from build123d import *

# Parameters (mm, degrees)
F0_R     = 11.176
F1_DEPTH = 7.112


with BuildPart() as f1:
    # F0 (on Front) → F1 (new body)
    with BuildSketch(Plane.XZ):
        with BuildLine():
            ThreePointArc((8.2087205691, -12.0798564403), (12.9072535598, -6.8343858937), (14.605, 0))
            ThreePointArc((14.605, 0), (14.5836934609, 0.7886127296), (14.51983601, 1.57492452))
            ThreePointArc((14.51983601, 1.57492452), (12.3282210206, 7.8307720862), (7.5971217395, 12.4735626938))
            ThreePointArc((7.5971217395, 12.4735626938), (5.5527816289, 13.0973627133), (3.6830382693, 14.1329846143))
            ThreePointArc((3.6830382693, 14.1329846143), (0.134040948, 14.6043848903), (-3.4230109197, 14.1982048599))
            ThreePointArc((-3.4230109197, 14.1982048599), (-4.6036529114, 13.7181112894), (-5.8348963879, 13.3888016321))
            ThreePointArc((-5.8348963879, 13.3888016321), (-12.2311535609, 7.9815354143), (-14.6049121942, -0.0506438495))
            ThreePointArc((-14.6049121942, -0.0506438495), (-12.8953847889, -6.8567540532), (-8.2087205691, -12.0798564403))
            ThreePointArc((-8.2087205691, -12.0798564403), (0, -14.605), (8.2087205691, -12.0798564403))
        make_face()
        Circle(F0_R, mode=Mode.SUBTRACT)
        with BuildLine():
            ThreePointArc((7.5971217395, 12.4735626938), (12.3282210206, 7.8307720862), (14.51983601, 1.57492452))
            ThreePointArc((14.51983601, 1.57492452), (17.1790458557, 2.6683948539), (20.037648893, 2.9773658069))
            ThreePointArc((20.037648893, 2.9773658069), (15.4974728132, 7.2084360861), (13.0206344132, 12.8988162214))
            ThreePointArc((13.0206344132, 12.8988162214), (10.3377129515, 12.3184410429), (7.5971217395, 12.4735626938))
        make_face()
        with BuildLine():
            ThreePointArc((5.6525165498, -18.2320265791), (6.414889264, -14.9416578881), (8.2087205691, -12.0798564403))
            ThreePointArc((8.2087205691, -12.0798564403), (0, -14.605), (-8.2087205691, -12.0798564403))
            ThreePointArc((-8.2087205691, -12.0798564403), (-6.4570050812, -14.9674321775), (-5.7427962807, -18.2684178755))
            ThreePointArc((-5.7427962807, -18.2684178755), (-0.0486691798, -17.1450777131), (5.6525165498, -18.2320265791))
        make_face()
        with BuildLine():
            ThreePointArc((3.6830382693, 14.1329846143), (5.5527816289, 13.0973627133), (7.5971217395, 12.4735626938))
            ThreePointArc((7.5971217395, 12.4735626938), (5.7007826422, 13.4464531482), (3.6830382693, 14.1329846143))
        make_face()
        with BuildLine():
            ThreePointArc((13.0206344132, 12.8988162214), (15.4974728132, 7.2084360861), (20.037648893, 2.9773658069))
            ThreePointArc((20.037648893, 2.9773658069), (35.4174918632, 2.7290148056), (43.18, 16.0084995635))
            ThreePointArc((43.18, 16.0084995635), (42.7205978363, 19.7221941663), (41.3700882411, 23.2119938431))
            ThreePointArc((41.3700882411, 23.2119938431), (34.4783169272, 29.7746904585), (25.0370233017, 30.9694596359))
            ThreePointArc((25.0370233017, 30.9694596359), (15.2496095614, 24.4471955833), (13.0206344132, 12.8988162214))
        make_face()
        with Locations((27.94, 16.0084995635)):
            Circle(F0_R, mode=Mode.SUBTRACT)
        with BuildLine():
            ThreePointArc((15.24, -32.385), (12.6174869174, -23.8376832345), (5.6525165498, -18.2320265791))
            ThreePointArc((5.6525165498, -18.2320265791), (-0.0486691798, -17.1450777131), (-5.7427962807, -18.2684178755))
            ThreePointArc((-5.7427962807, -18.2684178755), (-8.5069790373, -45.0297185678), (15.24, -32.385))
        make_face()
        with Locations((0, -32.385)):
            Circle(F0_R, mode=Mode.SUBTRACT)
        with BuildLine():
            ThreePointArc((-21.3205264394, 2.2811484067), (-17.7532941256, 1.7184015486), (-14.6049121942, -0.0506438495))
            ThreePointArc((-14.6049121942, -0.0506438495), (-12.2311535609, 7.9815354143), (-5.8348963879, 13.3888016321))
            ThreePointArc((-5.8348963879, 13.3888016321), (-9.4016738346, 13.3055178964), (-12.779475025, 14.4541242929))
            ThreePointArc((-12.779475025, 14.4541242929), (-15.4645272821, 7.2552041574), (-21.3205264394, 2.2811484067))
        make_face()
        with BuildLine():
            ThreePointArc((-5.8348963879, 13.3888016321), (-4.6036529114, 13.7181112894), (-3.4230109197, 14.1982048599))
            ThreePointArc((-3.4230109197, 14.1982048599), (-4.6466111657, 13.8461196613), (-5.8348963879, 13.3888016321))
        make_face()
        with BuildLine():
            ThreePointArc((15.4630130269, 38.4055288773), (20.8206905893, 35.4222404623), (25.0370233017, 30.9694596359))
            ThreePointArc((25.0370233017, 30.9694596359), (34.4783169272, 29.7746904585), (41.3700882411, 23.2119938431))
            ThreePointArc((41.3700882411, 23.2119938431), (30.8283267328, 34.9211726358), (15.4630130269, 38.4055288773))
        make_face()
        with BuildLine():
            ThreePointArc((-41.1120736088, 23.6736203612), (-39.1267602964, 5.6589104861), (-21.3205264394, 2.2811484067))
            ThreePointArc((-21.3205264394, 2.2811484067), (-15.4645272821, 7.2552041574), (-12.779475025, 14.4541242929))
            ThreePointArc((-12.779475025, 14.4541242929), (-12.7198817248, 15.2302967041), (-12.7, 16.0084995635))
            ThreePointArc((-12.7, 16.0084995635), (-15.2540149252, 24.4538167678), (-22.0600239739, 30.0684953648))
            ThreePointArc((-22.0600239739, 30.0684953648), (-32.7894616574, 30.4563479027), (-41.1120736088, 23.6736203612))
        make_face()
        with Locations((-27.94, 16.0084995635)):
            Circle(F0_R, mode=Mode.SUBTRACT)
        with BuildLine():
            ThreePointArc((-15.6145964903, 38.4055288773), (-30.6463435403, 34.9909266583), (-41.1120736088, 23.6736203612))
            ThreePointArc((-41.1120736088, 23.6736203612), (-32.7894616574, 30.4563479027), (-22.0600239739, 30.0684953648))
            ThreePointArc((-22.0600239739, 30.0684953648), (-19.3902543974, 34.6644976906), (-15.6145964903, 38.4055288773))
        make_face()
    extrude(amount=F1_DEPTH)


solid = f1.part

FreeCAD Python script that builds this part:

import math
import FreeCAD as App
import Part
import Sketcher
Q = App.Units.Quantity

doc = App.newDocument("Part")
body = doc.addObject("PartDesign::Body", "Body")

# Sketch on XZ plane
sketch1 = body.newObject("Sketcher::SketchObject", "Sketch")
sketch1.AttachmentSupport = (doc.getObject("XZ_Plane"), [""])
sketch1.MapMode = "FlatFace"
sketch1.addGeometry([
    Part.ArcOfCircle(Part.Circle(App.Vector(0, 0, 0), App.Vector(0, 0, 1), 14.6), math.radians(-56), math.radians(0)),  # 0
    Part.ArcOfCircle(Part.Circle(App.Vector(0, 0, 0), App.Vector(0, 0, 1), 14.6), math.radians(0), math.radians(6.19)),  # 1
    Part.ArcOfCircle(Part.Circle(App.Vector(19.7, -7.2, 0), App.Vector(0, 0, 1), 10.2), math.radians(88), math.radians(120)),  # 2
    Part.ArcOfCircle(Part.Circle(App.Vector(27.9, 16, 0), App.Vector(0, 0, 1), 15.2), math.radians(-121), math.radians(0)),  # 3
    Part.ArcOfCircle(Part.Circle(App.Vector(27.9, 16, 0), App.Vector(0, 0, 1), 15.2), math.radians(0), math.radians(28)),  # 4
    Part.ArcOfCircle(Part.Circle(App.Vector(17.7, 12.5, 0), App.Vector(0, 0, 1), 26), math.radians(24), math.radians(95)),  # 5
    Part.ArcOfCircle(Part.Circle(App.Vector(8.4, 19.5, 0), App.Vector(0, 0, 1), 20.2), math.radians(35), math.radians(70)),  # 6
    Part.ArcOfCircle(Part.Circle(App.Vector(27.9, 16, 0), App.Vector(0, 0, 1), 15.2), math.radians(101), math.radians(192)),  # 7
    Part.ArcOfCircle(Part.Circle(App.Vector(9.5, 22.5, 0), App.Vector(0, 0, 1), 10.2), math.radians(-101), math.radians(-70)),  # 8
    Part.ArcOfCircle(Part.Circle(App.Vector(0, 0, 0), App.Vector(0, 0, 1), 14.6), math.radians(58.66), math.radians(75.39)),  # 9
    Part.ArcOfCircle(Part.Circle(App.Vector(0, 0, 0), App.Vector(0, 0, 1), 14.6), math.radians(75), math.radians(104)),  # 10
    Part.ArcOfCircle(Part.Circle(App.Vector(0, 0, 0), App.Vector(0, 0, 1), 14.6), math.radians(103.55), math.radians(113.55)),  # 11
    Part.ArcOfCircle(Part.Circle(App.Vector(-7.9, 23.4, 0), App.Vector(0, 0, 1), 10.2), math.radians(-119), math.radians(-79)),  # 12
    Part.ArcOfCircle(Part.Circle(App.Vector(-27.9, 16, 0), App.Vector(0, 0, 1), 15.2), math.radians(-5.85), math.radians(0)),  # 13
    Part.ArcOfCircle(Part.Circle(App.Vector(-27.9, 16, 0), App.Vector(0, 0, 1), 15.2), math.radians(0), math.radians(67)),  # 14
    Part.ArcOfCircle(Part.Circle(App.Vector(-3.4, 22.3, 0), App.Vector(0, 0, 1), 20.2), math.radians(127), math.radians(157)),  # 15
    Part.ArcOfCircle(Part.Circle(App.Vector(-17.6, 12.4, 0), App.Vector(0, 0, 1), 26), math.radians(86), math.radians(154)),  # 16
    Part.ArcOfCircle(Part.Circle(App.Vector(-27.9, 16, 0), App.Vector(0, 0, 1), 15.2), math.radians(150), math.radians(296)),  # 17
    Part.ArcOfCircle(Part.Circle(App.Vector(-21.1, -7.9, 0), App.Vector(0, 0, 1), 10.2), math.radians(50), math.radians(91)),  # 18
    Part.ArcOfCircle(Part.Circle(App.Vector(0, 0, 0), App.Vector(0, 0, 1), 14.6), math.radians(-180), math.radians(-124)),  # 19
    Part.ArcOfCircle(Part.Circle(App.Vector(-15.9, -18.7, 0), App.Vector(0, 0, 1), 10.2), math.radians(3), math.radians(41)),  # 20
    Part.ArcOfCircle(Part.Circle(App.Vector(0, -32.4, 0), App.Vector(0, 0, 1), 15.2), math.radians(112), math.radians(360)),  # 21
    Part.ArcOfCircle(Part.Circle(App.Vector(0, -32.4, 0), App.Vector(0, 0, 1), 15.2), math.radians(0), math.radians(68)),  # 22
    Part.ArcOfCircle(Part.Circle(App.Vector(15.8, -18.9, 0), App.Vector(0, 0, 1), 10.2), math.radians(138), math.radians(176)),  # 23
    Part.Circle(App.Vector(0, -32.4, 0), App.Vector(0, 0, 1), 11.2),  # 24
    Part.Circle(App.Vector(-27.9, 16, 0), App.Vector(0, 0, 1), 11.2),  # 25
    Part.Circle(App.Vector(0, 0, 0), App.Vector(0, 0, 1), 11.2),  # 26
    Part.Circle(App.Vector(27.9, 16, 0), App.Vector(0, 0, 1), 11.2),  # 27
], False)
sketch1.addConstraint([
    Sketcher.Constraint("Tangent", 0, 2, 1, 1),
    Sketcher.Constraint("Coincident", 1, 2, 2, 2),
    Sketcher.Constraint("Coincident", 2, 1, 3, 1),
    Sketcher.Constraint("Tangent", 3, 2, 4, 1),
    Sketcher.Constraint("Coincident", 4, 2, 5, 1),
    Sketcher.Constraint("Coincident", 5, 2, 6, 2),
    Sketcher.Constraint("Coincident", 6, 1, 7, 1),
    Sketcher.Constraint("Coincident", 7, 2, 8, 2),
    Sketcher.Constraint("Coincident", 8, 1, 9, 1),
    Sketcher.Constraint("Tangent", 9, 2, 10, 1),
    Sketcher.Constraint("Tangent", 10, 2, 11, 1),
    Sketcher.Constraint("Coincident", 11, 2, 12, 2),
    Sketcher.Constraint("Coincident", 12, 1, 13, 1),
    Sketcher.Constraint("Tangent", 13, 2, 14, 1),
    Sketcher.Constraint("Coincident", 14, 2, 15, 2),
    Sketcher.Constraint("Coincident", 15, 1, 16, 1),
    Sketcher.Constraint("Coincident", 16, 2, 17, 1),
    Sketcher.Constraint("Coincident", 17, 2, 18, 2),
    Sketcher.Constraint("Coincident", 18, 1, 19, 1),
    Sketcher.Constraint("Coincident", 19, 2, 20, 2),
    Sketcher.Constraint("Coincident", 20, 1, 21, 1),
    Sketcher.Constraint("Tangent", 21, 2, 22, 1),
    Sketcher.Constraint("Coincident", 22, 2, 23, 2),
    Sketcher.Constraint("Coincident", 23, 1, 0, 1),
    Sketcher.Constraint("Coincident", 0, 3, -1, 1),
    Sketcher.Constraint("Coincident", 9, 3, -1, 1),
    Sketcher.Constraint("Coincident", 11, 3, -1, 1),
    Sketcher.Constraint("Coincident", 19, 3, -1, 1),
    Sketcher.Constraint("Coincident", 26, 3, -1, 1),
    Sketcher.Constraint("Coincident", 7, 3, 3, 3),
    Sketcher.Constraint("Coincident", 17, 3, 13, 3),
    Sketcher.Constraint("Coincident", 24, 3, 21, 3),
    Sketcher.Constraint("Coincident", 25, 3, 13, 3),
    Sketcher.Constraint("Coincident", 27, 3, 3, 3),
    Sketcher.Constraint("Equal", 0, 1),
    Sketcher.Constraint("Equal", 3, 4),
    Sketcher.Constraint("Equal", 4, 7),
    Sketcher.Constraint("Equal", 2, 8),
    Sketcher.Constraint("Equal", 1, 9),
    Sketcher.Constraint("Equal", 8, 12),
    Sketcher.Constraint("Equal", 7, 13),
    Sketcher.Constraint("Equal", 13, 14),
    Sketcher.Constraint("Equal", 6, 15),
    Sketcher.Constraint("Equal", 5, 16),
    Sketcher.Constraint("Equal", 14, 17),
    Sketcher.Constraint("Equal", 12, 18),
    Sketcher.Constraint("Equal", 11, 19),
    Sketcher.Constraint("Equal", 18, 20),
    Sketcher.Constraint("Equal", 17, 21),
    Sketcher.Constraint("Equal", 21, 22),
    Sketcher.Constraint("Equal", 20, 23),
    Sketcher.Constraint("Equal", 24, 25),
    Sketcher.Constraint("Equal", 25, 26),
    Sketcher.Constraint("Equal", 26, 27),
    Sketcher.Constraint("Symmetric", 3, 3, 13, 3, -2),
    Sketcher.Constraint("PointOnObject", 21, 3, -2),
    Sketcher.Constraint("PointOnObject", 0, 2, -1),
    Sketcher.Constraint("Horizontal", 27, 3, 3, 2),
    Sketcher.Constraint("Horizontal", 3, 2, 13, 2),
    Sketcher.Constraint("Horizontal", 5, 2, 15, 1),
    Sketcher.Constraint("Horizontal", 24, 3, 21, 2),
    Sketcher.Constraint("Horizontal", 19, 2, 23, 1),
    Sketcher.Constraint("Radius", 3, Q("0.6 in")),
    Sketcher.Constraint("Diameter", 24, Q("0.88 in")),
    Sketcher.Constraint("Radius", 0, Q("0.575 in")),
    Sketcher.Constraint("DistanceX", -1, 1, 3, 3, Q("1.1 in")),
    Sketcher.Constraint("DistanceY", 21, 3, -1, 1, Q("1.275 in")),
    Sketcher.Constraint("Radius", 6, Q("20.21036 mm")),
    Sketcher.Constraint("Radius", 2, Q("10.213296 mm")),
    Sketcher.Constraint("Radius", 5, Q("26.034205 mm")),
    Sketcher.Constraint("DistanceY", -1, 1, 3, 3, Q("16.0085 mm")),
    Sketcher.Constraint("DistanceY", -1, 1, 11, 2, Q("13.388802 mm")),
    Sketcher.Constraint("DistanceX", 8, 3, 5, 3, Q("8.118699 mm")),
    Sketcher.Constraint("DistanceY", 1, 2, 5, 3, Q("10.889099 mm")),
    Sketcher.Constraint("DistanceX", 7, 2, 1, 2, Q("1.499202 mm")),
    Sketcher.Constraint("DistanceY", 8, 1, 6, 3, Q("6.9872 mm")),
    Sketcher.Constraint("DistanceY", 9, 2, 8, 3, Q("8.367501 mm")),
    Sketcher.Constraint("DistanceX", -1, 1, 2, 3, Q("19.694928 mm")),
    Sketcher.Constraint("DistanceY", 2, 3, -1, 1, Q("7.230178 mm")),
    Sketcher.Constraint("DistanceX", -1, 1, 6, 3, Q("8.423519 mm")),
    Sketcher.Constraint("DistanceY", -1, 1, 12, 3, Q("23.400721 mm")),
    Sketcher.Constraint("DistanceY", -1, 1, 16, 3, Q("12.44883 mm")),
    Sketcher.Constraint("DistanceX", 18, 3, -1, 1, Q("21.103351 mm")),
    Sketcher.Constraint("DistanceY", 18, 3, -1, 1, Q("7.929838 mm")),
    Sketcher.Constraint("DistanceX", -1, 1, 23, 3, Q("15.846461 mm")),
    Sketcher.Constraint("DistanceY", 23, 3, -1, 1, Q("18.860441 mm")),
    Sketcher.Constraint("DistanceX", -1, 1, 4, 2, Q("41.370088 mm")),
    Sketcher.Constraint("DistanceX", 10, 2, -1, 1, Q("3.423011 mm")),
    Sketcher.Constraint("DistanceY", -1, 1, 16, 2, Q("23.67362 mm")),
    Sketcher.Constraint("DistanceX", 12, 3, 15, 3, Q("4.451989 mm")),
    Sketcher.Constraint("DistanceY", 20, 3, 19, 2, Q("6.668139 mm")),
])
pad1 = body.newObject("PartDesign::Pad", "Pad")
pad1.Profile = sketch1
pad1.Length = Q("0.28 in")

doc.recompute()
